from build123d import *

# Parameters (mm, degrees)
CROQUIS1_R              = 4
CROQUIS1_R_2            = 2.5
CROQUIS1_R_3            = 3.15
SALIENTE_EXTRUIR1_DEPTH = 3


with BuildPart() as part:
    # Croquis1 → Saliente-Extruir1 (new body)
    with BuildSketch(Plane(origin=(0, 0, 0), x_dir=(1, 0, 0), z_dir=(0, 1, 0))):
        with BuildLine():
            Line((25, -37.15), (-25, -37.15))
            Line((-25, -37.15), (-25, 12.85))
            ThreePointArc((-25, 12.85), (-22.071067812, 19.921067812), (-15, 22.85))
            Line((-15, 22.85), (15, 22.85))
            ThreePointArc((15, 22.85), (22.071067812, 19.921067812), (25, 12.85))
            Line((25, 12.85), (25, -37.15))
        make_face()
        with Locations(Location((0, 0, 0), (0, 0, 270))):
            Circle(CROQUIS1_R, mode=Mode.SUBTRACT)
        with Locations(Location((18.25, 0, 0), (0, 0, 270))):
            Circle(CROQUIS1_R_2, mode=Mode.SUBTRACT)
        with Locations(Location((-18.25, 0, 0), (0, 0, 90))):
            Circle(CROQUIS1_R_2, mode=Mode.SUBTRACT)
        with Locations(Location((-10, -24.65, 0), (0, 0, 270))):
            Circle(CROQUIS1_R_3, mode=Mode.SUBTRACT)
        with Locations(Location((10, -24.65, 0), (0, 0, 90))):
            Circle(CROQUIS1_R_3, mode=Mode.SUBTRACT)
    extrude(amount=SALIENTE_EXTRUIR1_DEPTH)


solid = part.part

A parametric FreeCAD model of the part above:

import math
import FreeCAD as App
import Part
import Sketcher
from FreeCAD import Vector
Q = App.Units.Quantity

doc = App.newDocument("Part")
body = doc.addObject("PartDesign::Body", "Body")

# Sketch on XZ plane
sketch1 = body.newObject("Sketcher::SketchObject", "Sketch")
sketch1.AttachmentSupport = (doc.getObject("XZ_Plane"), [""])
sketch1.MapMode = "FlatFace"
sketch1.addGeometry(Part.LineSegment(Vector(-25, 37.1, 0), Vector(25, 37.1, 0)), False)
sketch1.addGeometry(Part.LineSegment(Vector(25, 37.1, 0), Vector(25, -12.8, 0)), False)
sketch1.addGeometry(Part.ArcOfCircle(Part.Circle(Vector(15, -12.8, 0), Vector(0, 0, 1), 10), math.radians(-90), math.radians(0)), False)
sketch1.addGeometry(Part.LineSegment(Vector(15, -22.9, 0), Vector(-15, -22.9, 0)), False)
sketch1.addGeometry(Part.ArcOfCircle(Part.Circle(Vector(-15, -12.8, 0), Vector(0, 0, 1), 10), math.radians(180), math.radians(270)), False)
sketch1.addGeometry(Part.LineSegment(Vector(-25, -12.8, 0), Vector(-25, 37.1, 0)), False)
sketch1.addGeometry(Part.Circle(Vector(10, 24.6, 0), Vector(0, 0, 1), 3.1), False)
sketch1.addGeometry(Part.Circle(Vector(-10, 24.6, 0), Vector(0, 0, 1), 3.1), False)
sketch1.addGeometry(Part.Circle(Vector(18.2, 0, 0), Vector(0, 0, 1), 2.5), False)
sketch1.addGeometry(Part.Circle(Vector(0, 0, 0), Vector(0, 0, 1), 4), False)
sketch1.addGeometry(Part.Circle(Vector(-18.2, 0, 0), Vector(0, 0, 1), 2.5), False)
sketch1.addConstraint(Sketcher.Constraint("Coincident", 0, 2, 1, 1))
sketch1.addConstraint(Sketcher.Constraint("Tangent", 1, 2, 2, 2))
sketch1.addConstraint(Sketcher.Constraint("Tangent", 2, 1, 3, 1))
sketch1.addConstraint(Sketcher.Constraint("Tangent", 3, 2, 4, 2))
sketch1.addConstraint(Sketcher.Constraint("Tangent", 4, 1, 5, 1))
sketch1.addConstraint(Sketcher.Constraint("Coincident", 5, 2, 0, 1))
sketch1.addConstraint(Sketcher.Constraint("Horizontal", 0))
sketch1.addConstraint(Sketcher.Constraint("Vertical", 1))
sketch1.addConstraint(Sketcher.Constraint("Horizontal", 3))
sketch1.addConstraint(Sketcher.Constraint("Vertical", 5))
sketch1.addConstraint(Sketcher.Constraint("Coincident", 9, 3, -1, 1))
sketch1.addConstraint(Sketcher.Constraint("Equal", 2, 4))
sketch1.addConstraint(Sketcher.Constraint("Equal", 6, 7))
sketch1.addConstraint(Sketcher.Constraint("Equal", 8, 10))
sketch1.addConstraint(Sketcher.Constraint("Symmetric", 8, 3, 10, 3, -1, 1))
sketch1.addConstraint(Sketcher.Constraint("Symmetric", 6, 3, 7, 3, -2))
sketch1.addConstraint(Sketcher.Constraint("PointOnObject", 8, 3, -1))
sketch1.addConstraint(Sketcher.Constraint("Equal", 0, 1))
sketch1.addConstraint(Sketcher.Constraint("Diameter", 8, Q("5 mm")))
sketch1.addConstraint(Sketcher.Constraint("Diameter", 9, Q("8 mm")))
sketch1.addConstraint(Sketcher.Constraint("Radius", 2, Q("10 mm")))
sketch1.addConstraint(Sketcher.Constraint("Diameter", 6, Q("6.3 mm")))
sketch1.addConstraint(Sketcher.Constraint("DistanceX", 0, 1, 0, 2, Q("50 mm")))
sketch1.addConstraint(Sketcher.Constraint("DistanceX", -1, 1, 2, 3, Q("15 mm")))
sketch1.addConstraint(Sketcher.Constraint("DistanceX", -1, 1, 6, 3, Q("10 mm")))
sketch1.addConstraint(Sketcher.Constraint("DistanceY", 2, 3, 6, 3, Q("37.5 mm")))
sketch1.addConstraint(Sketcher.Constraint("DistanceX", 10, 3, 8, 3, Q("36.5 mm")))
sketch1.addConstraint(Sketcher.Constraint("DistanceY", 2, 3, -1, 1, Q("12.85 mm")))
pad1 = body.newObject("PartDesign::Pad", "Pad")
pad1.Profile = sketch1
pad1.Length = 3
pad1.Reversed = True

doc.recompute()
